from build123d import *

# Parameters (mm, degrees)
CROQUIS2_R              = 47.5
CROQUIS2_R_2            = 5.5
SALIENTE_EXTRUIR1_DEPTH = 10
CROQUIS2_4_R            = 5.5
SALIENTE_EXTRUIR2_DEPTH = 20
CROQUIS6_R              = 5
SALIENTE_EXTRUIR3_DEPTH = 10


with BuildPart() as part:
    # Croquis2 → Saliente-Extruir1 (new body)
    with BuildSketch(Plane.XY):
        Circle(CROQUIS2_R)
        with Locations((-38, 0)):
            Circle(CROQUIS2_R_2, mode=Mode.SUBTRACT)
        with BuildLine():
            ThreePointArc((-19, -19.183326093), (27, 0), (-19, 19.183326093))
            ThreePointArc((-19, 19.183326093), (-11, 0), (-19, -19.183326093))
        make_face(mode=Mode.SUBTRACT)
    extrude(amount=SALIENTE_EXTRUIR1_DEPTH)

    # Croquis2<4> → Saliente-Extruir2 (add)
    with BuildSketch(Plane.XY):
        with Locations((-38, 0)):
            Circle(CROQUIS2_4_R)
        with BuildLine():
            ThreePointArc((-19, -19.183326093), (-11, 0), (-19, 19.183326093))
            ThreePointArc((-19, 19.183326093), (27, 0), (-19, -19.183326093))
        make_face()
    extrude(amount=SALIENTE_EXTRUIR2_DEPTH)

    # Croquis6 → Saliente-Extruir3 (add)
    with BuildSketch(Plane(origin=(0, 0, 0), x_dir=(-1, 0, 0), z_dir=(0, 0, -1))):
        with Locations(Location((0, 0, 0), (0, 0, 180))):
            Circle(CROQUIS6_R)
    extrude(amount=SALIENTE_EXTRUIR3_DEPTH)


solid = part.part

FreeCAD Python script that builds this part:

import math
import FreeCAD as App
import Part
import Sketcher

V = App.Vector
Q = App.Units.Quantity

doc = App.newDocument("Part")
params = doc.addObject("Spreadsheet::Sheet", "Params")
for row, (alias, value) in enumerate([
    ("sketch1_diameter", "95 mm"),
    ("sketch1_diameter2", "11 mm"),
    ("sketch1_radius", "27 mm"),
    ("pad1_length", "10 mm"),
    ("sketch2_diameter", "11 mm"),
    ("sketch2_radius", "27 mm"),
    ("pad2_length", "20 mm"),
    ("sketch3_diameter", "10 mm"),
    ("pad3_length", "10 mm"),
], start=1):
    params.set(f"A{row}", alias)
    params.set(f"B{row}", "=" + value)
    params.setAlias(f"B{row}", alias)

body = doc.addObject("PartDesign::Body", "Body")

sketch1 = doc.addObject("Sketcher::SketchObject", "Sketch")
body.addObject(sketch1)
sketch1.AttachmentSupport = (doc.XY_Plane, [""])
sketch1.MapMode = "FlatFace"
sketch1.addGeometry([
    Part.Circle(V(0, 0, 0), V(0, 0, 1), 48),
    Part.Circle(V(-38, 0, 0), V(0, 0, 1), 6),
    Part.ArcOfCircle(Part.Circle(V(0, 0, 0), V(0, 0, 1), 27), math.radians(-135), math.radians(135)),
    Part.ArcOfCircle(Part.Circle(V(-38, 0, 0), V(0, 0, 1), 27), math.radians(-45), math.radians(45)),
], False)
sketch1.addConstraint([
    Sketcher.Constraint("Coincident", 2, 1, 3, 1),
    Sketcher.Constraint("Coincident", 3, 2, 2, 2),
    Sketcher.Constraint("Coincident", 0, 3, -1, 1),
    Sketcher.Constraint("Coincident", 2, 3, -1, 1),
    Sketcher.Constraint("Coincident", 3, 3, 1, 3),
    Sketcher.Constraint("Equal", 2, 3),
    Sketcher.Constraint("PointOnObject", 1, 3, -1),
    Sketcher.Constraint("Diameter", 0, Q("95 mm")),
    Sketcher.Constraint("Diameter", 1, Q("11 mm")),
    Sketcher.Constraint("Radius", 2, Q("27 mm")),
    Sketcher.Constraint("DistanceX", 1, 3, -1, 1, Q("38 mm")),
])
sketch1.setExpression("Constraints[7]", "Params.sketch1_diameter")
sketch1.setExpression("Constraints[8]", "Params.sketch1_diameter2")
sketch1.setExpression("Constraints[9]", "Params.sketch1_radius")
pad1 = doc.addObject("PartDesign::Pad", "Pad")
body.addObject(pad1)
pad1.Profile = sketch1
pad1.setExpression("Length", "Params.pad1_length")

sketch2 = doc.addObject("Sketcher::SketchObject", "Sketch001")
body.addObject(sketch2)
sketch2.AttachmentSupport = (doc.XY_Plane, [""])
sketch2.MapMode = "FlatFace"
sketch2.addGeometry([
    Part.Circle(V(-38, 0, 0), V(0, 0, 1), 6),
    Part.ArcOfCircle(Part.Circle(V(-38, 0, 0), V(0, 0, 1), 27), math.radians(-45), math.radians(45)),
    Part.ArcOfCircle(Part.Circle(V(0, 0, 0), V(0, 0, 1), 27), math.radians(-135), math.radians(135)),
], False)
sketch2.addConstraint([
    Sketcher.Constraint("Coincident", 1, 1, 2, 1),
    Sketcher.Constraint("Coincident", 2, 2, 1, 2),
    Sketcher.Constraint("Coincident", 2, 3, -1, 1),
    Sketcher.Constraint("Coincident", 1, 3, 0, 3),
    Sketcher.Constraint("Equal", 1, 2),
    Sketcher.Constraint("PointOnObject", 0, 3, -1),
    Sketcher.Constraint("Diameter", 0, Q("11 mm")),
    Sketcher.Constraint("Radius", 1, Q("27 mm")),
    Sketcher.Constraint("DistanceX", 0, 3, -1, 1, Q("38 mm")),
])
sketch2.setExpression("Constraints[6]", "Params.sketch2_diameter")
sketch2.setExpression("Constraints[7]", "Params.sketch2_radius")
pad2 = doc.addObject("PartDesign::Pad", "Pad001")
body.addObject(pad2)
pad2.Profile = sketch2
pad2.setExpression("Length", "Params.pad2_length")

sketch3 = doc.addObject("Sketcher::SketchObject", "Sketch002")
body.addObject(sketch3)
sketch3.AttachmentSupport = (doc.XY_Plane, [""])
sketch3.MapMode = "FlatFace"
sketch3.addGeometry(Part.Circle(V(0, 0, 0), V(0, 0, 1), 5), False)
sketch3.addConstraint([
    Sketcher.Constraint("Coincident", 0, 3, -1, 1),
    Sketcher.Constraint("Diameter", 0, Q("10 mm")),
])
sketch3.setExpression("Constraints[1]", "Params.sketch3_diameter")
pad3 = doc.addObject("PartDesign::Pad", "Pad002")
body.addObject(pad3)
pad3.Profile = sketch3
pad3.setExpression("Length", "Params.pad3_length")
pad3.Reversed = True

doc.recompute()
